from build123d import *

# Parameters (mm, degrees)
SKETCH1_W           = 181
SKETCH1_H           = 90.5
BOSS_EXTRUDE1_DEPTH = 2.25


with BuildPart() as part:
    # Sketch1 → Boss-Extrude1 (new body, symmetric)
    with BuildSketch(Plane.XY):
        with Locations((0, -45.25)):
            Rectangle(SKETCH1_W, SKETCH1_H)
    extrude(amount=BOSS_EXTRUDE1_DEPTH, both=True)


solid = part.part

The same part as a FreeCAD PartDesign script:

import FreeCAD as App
import Part
import Sketcher

V = App.Vector
Q = App.Units.Quantity

doc = App.newDocument("Part")
body = doc.addObject("PartDesign::Body", "Body")

# Sketch on XY plane
sketch1 = body.newObject("Sketcher::SketchObject", "Sketch")
sketch1.AttachmentSupport = (doc.getObject("XY_Plane"), [""])
sketch1.MapMode = "FlatFace"
sketch1.addGeometry([
    Part.LineSegment(V(-90, 0, 0), V(-90, -90, 0)),
    Part.LineSegment(V(-90, -90, 0), V(90, -90, 0)),
    Part.LineSegment(V(90, -90, 0), V(90, 0, 0)),
    Part.LineSegment(V(90, 0, 0), V(-90, 0, 0)),
], False)
sketch1.addConstraint([
    Sketcher.Constraint("Coincident", 0, 2, 1, 1),
    Sketcher.Constraint("Coincident", 1, 2, 2, 1),
    Sketcher.Constraint("Coincident", 2, 2, 3, 1),
    Sketcher.Constraint("Coincident", 3, 2, 0, 1),
    Sketcher.Constraint("Vertical", 0),
    Sketcher.Constraint("Horizontal", 1),
    Sketcher.Constraint("Vertical", 2),
    Sketcher.Constraint("Horizontal", 3),
    Sketcher.Constraint("Symmetric", 2, 2, 3, 2, -1, 1),
    Sketcher.Constraint("DistanceX", 1, 1, 1, 2, Q("181 mm")),
    Sketcher.Constraint("DistanceY", 0, 2, 0, 1, Q("90.5 mm")),
])
pad1 = body.newObject("PartDesign::Pad", "Pad")
pad1.Profile = sketch1
pad1.Length = 4.5
pad1.Midplane = True

doc.recompute()
